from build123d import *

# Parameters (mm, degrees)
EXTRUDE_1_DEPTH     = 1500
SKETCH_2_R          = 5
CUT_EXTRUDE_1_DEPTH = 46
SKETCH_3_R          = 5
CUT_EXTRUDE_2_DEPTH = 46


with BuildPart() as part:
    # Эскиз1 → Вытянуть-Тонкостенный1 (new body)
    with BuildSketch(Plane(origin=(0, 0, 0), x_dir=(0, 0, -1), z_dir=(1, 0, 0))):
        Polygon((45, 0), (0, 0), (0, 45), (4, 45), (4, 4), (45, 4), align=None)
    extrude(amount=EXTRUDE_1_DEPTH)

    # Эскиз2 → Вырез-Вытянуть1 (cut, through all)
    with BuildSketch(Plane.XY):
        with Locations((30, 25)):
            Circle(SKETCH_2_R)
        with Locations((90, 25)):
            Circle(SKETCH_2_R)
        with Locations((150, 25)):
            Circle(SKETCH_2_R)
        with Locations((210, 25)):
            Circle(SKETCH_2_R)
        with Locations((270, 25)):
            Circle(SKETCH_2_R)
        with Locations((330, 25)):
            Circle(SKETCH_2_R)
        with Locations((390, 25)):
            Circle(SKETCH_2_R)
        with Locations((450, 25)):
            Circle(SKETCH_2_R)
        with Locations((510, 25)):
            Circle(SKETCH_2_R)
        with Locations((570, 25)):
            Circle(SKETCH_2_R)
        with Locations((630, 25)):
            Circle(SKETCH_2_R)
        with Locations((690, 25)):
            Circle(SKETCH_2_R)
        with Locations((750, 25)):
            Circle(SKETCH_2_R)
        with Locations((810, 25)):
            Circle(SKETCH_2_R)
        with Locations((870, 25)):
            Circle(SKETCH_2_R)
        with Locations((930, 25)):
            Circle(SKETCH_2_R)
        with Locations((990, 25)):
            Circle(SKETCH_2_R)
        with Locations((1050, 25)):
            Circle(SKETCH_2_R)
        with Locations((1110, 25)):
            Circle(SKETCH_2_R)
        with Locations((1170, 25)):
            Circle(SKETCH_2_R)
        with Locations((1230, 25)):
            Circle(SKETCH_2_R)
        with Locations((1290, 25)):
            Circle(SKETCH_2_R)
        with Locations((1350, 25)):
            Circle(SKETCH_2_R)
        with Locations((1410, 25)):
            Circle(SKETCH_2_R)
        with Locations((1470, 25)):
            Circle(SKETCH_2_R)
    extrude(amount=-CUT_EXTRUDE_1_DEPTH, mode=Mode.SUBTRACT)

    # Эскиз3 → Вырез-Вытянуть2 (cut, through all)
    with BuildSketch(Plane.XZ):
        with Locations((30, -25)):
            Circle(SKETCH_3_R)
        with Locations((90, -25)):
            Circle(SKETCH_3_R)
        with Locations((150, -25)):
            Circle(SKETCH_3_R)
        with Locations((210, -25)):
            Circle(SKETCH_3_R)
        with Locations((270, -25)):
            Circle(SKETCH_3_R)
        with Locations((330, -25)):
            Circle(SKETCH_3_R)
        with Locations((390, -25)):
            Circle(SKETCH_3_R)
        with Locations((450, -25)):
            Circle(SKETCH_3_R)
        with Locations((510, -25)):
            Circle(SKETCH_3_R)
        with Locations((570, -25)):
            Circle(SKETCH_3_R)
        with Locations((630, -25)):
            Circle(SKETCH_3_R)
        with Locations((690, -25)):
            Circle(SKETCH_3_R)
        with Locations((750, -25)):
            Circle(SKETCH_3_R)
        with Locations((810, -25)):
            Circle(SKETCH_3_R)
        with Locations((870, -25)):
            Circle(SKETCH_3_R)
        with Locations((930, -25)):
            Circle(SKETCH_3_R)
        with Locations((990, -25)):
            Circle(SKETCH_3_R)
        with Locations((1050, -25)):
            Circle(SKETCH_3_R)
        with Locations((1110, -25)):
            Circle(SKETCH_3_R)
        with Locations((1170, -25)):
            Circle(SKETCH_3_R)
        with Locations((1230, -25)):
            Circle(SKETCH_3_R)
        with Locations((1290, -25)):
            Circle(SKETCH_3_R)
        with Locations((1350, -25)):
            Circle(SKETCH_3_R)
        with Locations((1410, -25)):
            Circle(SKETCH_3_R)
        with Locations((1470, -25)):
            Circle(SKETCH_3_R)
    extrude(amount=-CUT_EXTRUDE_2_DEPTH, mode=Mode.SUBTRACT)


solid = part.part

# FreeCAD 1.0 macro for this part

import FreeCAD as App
import Part
import Sketcher

V = App.Vector

doc = App.newDocument("Part")
params = doc.addObject("Spreadsheet::Sheet", "Params")
for row, (alias, value) in enumerate([
    ("sketch1_width", "4 mm"),
    ("sketch1_width2", "41 mm"),
    ("pad1_length", "1500 mm"),
    ("sketch2_diameter", "10 mm"),
    ("sketch3_diameter", "10 mm"),
], start=1):
    params.set(f"A{row}", alias)
    params.set(f"B{row}", "=" + value)
    params.setAlias(f"B{row}", alias)

body = doc.addObject("PartDesign::Body", "Body")

# Sketch on YZ plane
sketch1 = body.newObject("Sketcher::SketchObject", "Sketch")
sketch1.AttachmentSupport = (doc.getObject("YZ_Plane"), [""])
sketch1.MapMode = "FlatFace"
sketch1.addGeometry([
    Part.LineSegment(V(0, 0, 0), V(0, -45, 0)),  # 0
    Part.LineSegment(V(0, -45, 0), V(4, -45, 0)),  # 1
    Part.LineSegment(V(4, -45, 0), V(4, -4, 0)),  # 2
    Part.LineSegment(V(4, -4, 0), V(45, -4, 0)),  # 3
    Part.LineSegment(V(45, -4, 0), V(45, 0, 0)),  # 4
    Part.LineSegment(V(45, 0, 0), V(0, 0, 0)),  # 5
], False)
sketch1.addConstraint([
    Sketcher.Constraint("Coincident", 0, 2, 1, 1),
    Sketcher.Constraint("Coincident", 1, 2, 2, 1),
    Sketcher.Constraint("Coincident", 2, 2, 3, 1),
    Sketcher.Constraint("Coincident", 3, 2, 4, 1),
    Sketcher.Constraint("Coincident", 4, 2, 5, 1),
    Sketcher.Constraint("Coincident", 5, 2, 0, 1),
    Sketcher.Constraint("Vertical", 0),
    Sketcher.Constraint("Horizontal", 1),
    Sketcher.Constraint("Vertical", 2),
    Sketcher.Constraint("Horizontal", 3),
    Sketcher.Constraint("Vertical", 4),
    Sketcher.Constraint("Horizontal", 5),
    Sketcher.Constraint("Coincident", 5, 2, -1, 1),
    Sketcher.Constraint("Equal", 5, 0),
    Sketcher.Constraint("Equal", 3, 2),
    Sketcher.Constraint("DistanceX", 1, 1, 1, 2, 4.0),
    Sketcher.Constraint("DistanceX", 3, 1, 3, 2, 41.0),
])
sketch1.setExpression("Constraints[15]", "Params.sketch1_width")
sketch1.setExpression("Constraints[16]", "Params.sketch1_width2")
pad1 = body.newObject("PartDesign::Pad", "Pad")
pad1.Profile = sketch1
pad1.setExpression("Length", "Params.pad1_length")

# Sketch on XY plane
sketch2 = body.newObject("Sketcher::SketchObject", "Sketch001")
sketch2.AttachmentSupport = (doc.getObject("XY_Plane"), [""])
sketch2.MapMode = "FlatFace"
sketch2.addGeometry([
    Part.Circle(V(30, 25, 0), V(0, 0, 1), 5),  # 0
    Part.Circle(V(90, 25, 0), V(0, 0, 1), 5),  # 1
    Part.Circle(V(150, 25, 0), V(0, 0, 1), 5),  # 2
    Part.Circle(V(210, 25, 0), V(0, 0, 1), 5),  # 3
    Part.Circle(V(270, 25, 0), V(0, 0, 1), 5),  # 4
    Part.Circle(V(330, 25, 0), V(0, 0, 1), 5),  # 5
    Part.Circle(V(390, 25, 0), V(0, 0, 1), 5),  # 6
    Part.Circle(V(450, 25, 0), V(0, 0, 1), 5),  # 7
    Part.Circle(V(510, 25, 0), V(0, 0, 1), 5),  # 8
    Part.Circle(V(570, 25, 0), V(0, 0, 1), 5),  # 9
    Part.Circle(V(630, 25, 0), V(0, 0, 1), 5),  # 10
    Part.Circle(V(690, 25, 0), V(0, 0, 1), 5),  # 11
    Part.Circle(V(750, 25, 0), V(0, 0, 1), 5),  # 12
    Part.Circle(V(810, 25, 0), V(0, 0, 1), 5),  # 13
    Part.Circle(V(870, 25, 0), V(0, 0, 1), 5),  # 14
    Part.Circle(V(930, 25, 0), V(0, 0, 1), 5),  # 15
    Part.Circle(V(990, 25, 0), V(0, 0, 1), 5),  # 16
    Part.Circle(V(1050, 25, 0), V(0, 0, 1), 5),  # 17
    Part.Circle(V(1110, 25, 0), V(0, 0, 1), 5),  # 18
    Part.Circle(V(1170, 25, 0), V(0, 0, 1), 5),  # 19
    Part.Circle(V(1230, 25, 0), V(0, 0, 1), 5),  # 20
    Part.Circle(V(1290, 25, 0), V(0, 0, 1), 5),  # 21
    Part.Circle(V(1350, 25, 0), V(0, 0, 1), 5),  # 22
    Part.Circle(V(1410, 25, 0), V(0, 0, 1), 5),  # 23
    Part.Circle(V(1470, 25, 0), V(0, 0, 1), 5),  # 24
], False)
sketch2.addConstraint([
    Sketcher.Constraint("Equal", 0, 1),
    Sketcher.Constraint("Equal", 1, 2),
    Sketcher.Constraint("Equal", 2, 3),
    Sketcher.Constraint("Equal", 3, 4),
    Sketcher.Constraint("Equal", 4, 5),
    Sketcher.Constraint("Equal", 5, 6),
    Sketcher.Constraint("Equal", 6, 7),
    Sketcher.Constraint("Equal", 7, 8),
    Sketcher.Constraint("Equal", 8, 9),
    Sketcher.Constraint("Equal", 9, 10),
    Sketcher.Constraint("Equal", 10, 11),
    Sketcher.Constraint("Equal", 11, 12),
    Sketcher.Constraint("Equal", 12, 13),
    Sketcher.Constraint("Equal", 13, 14),
    Sketcher.Constraint("Equal", 14, 15),
    Sketcher.Constraint("Equal", 15, 16),
    Sketcher.Constraint("Equal", 16, 17),
    Sketcher.Constraint("Equal", 17, 18),
    Sketcher.Constraint("Equal", 18, 19),
    Sketcher.Constraint("Equal", 19, 20),
    Sketcher.Constraint("Equal", 20, 21),
    Sketcher.Constraint("Equal", 21, 22),
    Sketcher.Constraint("Equal", 22, 23),
    Sketcher.Constraint("Equal", 23, 24),
    Sketcher.Constraint("Horizontal", 0, 3, 1, 3),
    Sketcher.Constraint("Horizontal", 1, 3, 2, 3),
    Sketcher.Constraint("Horizontal", 2, 3, 3, 3),
    Sketcher.Constraint("Horizontal", 3, 3, 4, 3),
    Sketcher.Constraint("Horizontal", 4, 3, 5, 3),
    Sketcher.Constraint("Horizontal", 5, 3, 6, 3),
    Sketcher.Constraint("Horizontal", 6, 3, 7, 3),
    Sketcher.Constraint("Horizontal", 7, 3, 8, 3),
    Sketcher.Constraint("Horizontal", 8, 3, 9, 3),
    Sketcher.Constraint("Horizontal", 9, 3, 10, 3),
    Sketcher.Constraint("Horizontal", 10, 3, 11, 3),
    Sketcher.Constraint("Horizontal", 11, 3, 12, 3),
    Sketcher.Constraint("Horizontal", 12, 3, 13, 3),
    Sketcher.Constraint("Horizontal", 13, 3, 14, 3),
    Sketcher.Constraint("Horizontal", 14, 3, 15, 3),
    Sketcher.Constraint("Horizontal", 15, 3, 16, 3),
    Sketcher.Constraint("Horizontal", 16, 3, 17, 3),
    Sketcher.Constraint("Horizontal", 17, 3, 18, 3),
    Sketcher.Constraint("Horizontal", 18, 3, 19, 3),
    Sketcher.Constraint("Horizontal", 19, 3, 20, 3),
    Sketcher.Constraint("Horizontal", 20, 3, 21, 3),
    Sketcher.Constraint("Horizontal", 21, 3, 22, 3),
    Sketcher.Constraint("Horizontal", 22, 3, 23, 3),
    Sketcher.Constraint("Horizontal", 23, 3, 24, 3),
    Sketcher.Constraint("Diameter", 0, 10.0),
    Sketcher.Constraint("DistanceX", -1, 1, 0, 3, 30.0),
    Sketcher.Constraint("DistanceY", -1, 1, 0, 3, 25.0),
    Sketcher.Constraint("DistanceX", -1, 1, 1, 3, 90.0),
    Sketcher.Constraint("DistanceX", -1, 1, 2, 3, 150.0),
    Sketcher.Constraint("DistanceX", -1, 1, 3, 3, 210.0),
    Sketcher.Constraint("DistanceX", -1, 1, 4, 3, 270.0),
    Sketcher.Constraint("DistanceX", -1, 1, 5, 3, 330.0),
    Sketcher.Constraint("DistanceX", -1, 1, 6, 3, 390.0),
    Sketcher.Constraint("DistanceX", -1, 1, 7, 3, 450.0),
    Sketcher.Constraint("DistanceX", -1, 1, 8, 3, 510.0),
    Sketcher.Constraint("DistanceX", -1, 1, 9, 3, 570.0),
    Sketcher.Constraint("DistanceX", -1, 1, 10, 3, 630.0),
    Sketcher.Constraint("DistanceX", -1, 1, 11, 3, 690.0),
    Sketcher.Constraint("DistanceX", -1, 1, 12, 3, 750.0),
    Sketcher.Constraint("DistanceX", -1, 1, 13, 3, 810.0),
    Sketcher.Constraint("DistanceX", -1, 1, 14, 3, 870.0),
    Sketcher.Constraint("DistanceX", -1, 1, 15, 3, 930.0),
    Sketcher.Constraint("DistanceX", -1, 1, 16, 3, 990.0),
    Sketcher.Constraint("DistanceX", -1, 1, 17, 3, 1050.0),
    Sketcher.Constraint("DistanceX", -1, 1, 18, 3, 1110.0),
    Sketcher.Constraint("DistanceX", -1, 1, 19, 3, 1170.0),
    Sketcher.Constraint("DistanceX", -1, 1, 20, 3, 1230.0),
    Sketcher.Constraint("DistanceX", -1, 1, 21, 3, 1290.0),
    Sketcher.Constraint("DistanceX", -1, 1, 22, 3, 1350.0),
    Sketcher.Constraint("DistanceX", -1, 1, 23, 3, 1410.0),
    Sketcher.Constraint("DistanceX", -1, 1, 24, 3, 1470.0),
])
sketch2.setExpression("Constraints[48]", "Params.sketch2_diameter")
pocket1 = body.newObject("PartDesign::Pocket", "Pocket")
pocket1.Profile = sketch2
pocket1.Type = "ThroughAll"

# Sketch on XZ plane
sketch3 = body.newObject("Sketcher::SketchObject", "Sketch002")
sketch3.AttachmentSupport = (doc.getObject("XZ_Plane"), [""])
sketch3.MapMode = "FlatFace"
sketch3.addGeometry([
    Part.Circle(V(30, -25, 0), V(0, 0, 1), 5),  # 0
    Part.Circle(V(90, -25, 0), V(0, 0, 1), 5),  # 1
    Part.Circle(V(150, -25, 0), V(0, 0, 1), 5),  # 2
    Part.Circle(V(210, -25, 0), V(0, 0, 1), 5),  # 3
    Part.Circle(V(270, -25, 0), V(0, 0, 1), 5),  # 4
    Part.Circle(V(330, -25, 0), V(0, 0, 1), 5),  # 5
    Part.Circle(V(390, -25, 0), V(0, 0, 1), 5),  # 6
    Part.Circle(V(450, -25, 0), V(0, 0, 1), 5),  # 7
    Part.Circle(V(510, -25, 0), V(0, 0, 1), 5),  # 8
    Part.Circle(V(570, -25, 0), V(0, 0, 1), 5),  # 9
    Part.Circle(V(630, -25, 0), V(0, 0, 1), 5),  # 10
    Part.Circle(V(690, -25, 0), V(0, 0, 1), 5),  # 11
    Part.Circle(V(750, -25, 0), V(0, 0, 1), 5),  # 12
    Part.Circle(V(810, -25, 0), V(0, 0, 1), 5),  # 13
    Part.Circle(V(870, -25, 0), V(0, 0, 1), 5),  # 14
    Part.Circle(V(930, -25, 0), V(0, 0, 1), 5),  # 15
    Part.Circle(V(990, -25, 0), V(0, 0, 1), 5),  # 16
    Part.Circle(V(1050, -25, 0), V(0, 0, 1), 5),  # 17
    Part.Circle(V(1110, -25, 0), V(0, 0, 1), 5),  # 18
    Part.Circle(V(1170, -25, 0), V(0, 0, 1), 5),  # 19
    Part.Circle(V(1230, -25, 0), V(0, 0, 1), 5),  # 20
    Part.Circle(V(1290, -25, 0), V(0, 0, 1), 5),  # 21
    Part.Circle(V(1350, -25, 0), V(0, 0, 1), 5),  # 22
    Part.Circle(V(1410, -25, 0), V(0, 0, 1), 5),  # 23
    Part.Circle(V(1470, -25, 0), V(0, 0, 1), 5),  # 24
], False)
sketch3.addConstraint([
    Sketcher.Constraint("Equal", 0, 1),
    Sketcher.Constraint("Equal", 1, 2),
    Sketcher.Constraint("Equal", 2, 3),
    Sketcher.Constraint("Equal", 3, 4),
    Sketcher.Constraint("Equal", 4, 5),
    Sketcher.Constraint("Equal", 5, 6),
    Sketcher.Constraint("Equal", 6, 7),
    Sketcher.Constraint("Equal", 7, 8),
    Sketcher.Constraint("Equal", 8, 9),
    Sketcher.Constraint("Equal", 9, 10),
    Sketcher.Constraint("Equal", 10, 11),
    Sketcher.Constraint("Equal", 11, 12),
    Sketcher.Constraint("Equal", 12, 13),
    Sketcher.Constraint("Equal", 13, 14),
    Sketcher.Constraint("Equal", 14, 15),
    Sketcher.Constraint("Equal", 15, 16),
    Sketcher.Constraint("Equal", 16, 17),
    Sketcher.Constraint("Equal", 17, 18),
    Sketcher.Constraint("Equal", 18, 19),
    Sketcher.Constraint("Equal", 19, 20),
    Sketcher.Constraint("Equal", 20, 21),
    Sketcher.Constraint("Equal", 21, 22),
    Sketcher.Constraint("Equal", 22, 23),
    Sketcher.Constraint("Equal", 23, 24),
    Sketcher.Constraint("Horizontal", 0, 3, 1, 3),
    Sketcher.Constraint("Horizontal", 1, 3, 2, 3),
    Sketcher.Constraint("Horizontal", 2, 3, 3, 3),
    Sketcher.Constraint("Horizontal", 3, 3, 4, 3),
    Sketcher.Constraint("Horizontal", 4, 3, 5, 3),
    Sketcher.Constraint("Horizontal", 5, 3, 6, 3),
    Sketcher.Constraint("Horizontal", 6, 3, 7, 3),
    Sketcher.Constraint("Horizontal", 7, 3, 8, 3),
    Sketcher.Constraint("Horizontal", 8, 3, 9, 3),
    Sketcher.Constraint("Horizontal", 9, 3, 10, 3),
    Sketcher.Constraint("Horizontal", 10, 3, 11, 3),
    Sketcher.Constraint("Horizontal", 11, 3, 12, 3),
    Sketcher.Constraint("Horizontal", 12, 3, 13, 3),
    Sketcher.Constraint("Horizontal", 13, 3, 14, 3),
    Sketcher.Constraint("Horizontal", 14, 3, 15, 3),
    Sketcher.Constraint("Horizontal", 15, 3, 16, 3),
    Sketcher.Constraint("Horizontal", 16, 3, 17, 3),
    Sketcher.Constraint("Horizontal", 17, 3, 18, 3),
    Sketcher.Constraint("Horizontal", 18, 3, 19, 3),
    Sketcher.Constraint("Horizontal", 19, 3, 20, 3),
    Sketcher.Constraint("Horizontal", 20, 3, 21, 3),
    Sketcher.Constraint("Horizontal", 21, 3, 22, 3),
    Sketcher.Constraint("Horizontal", 22, 3, 23, 3),
    Sketcher.Constraint("Horizontal", 23, 3, 24, 3),
    Sketcher.Constraint("Diameter", 0, 10.0),
    Sketcher.Constraint("DistanceX", -1, 1, 0, 3, 30.0),
    Sketcher.Constraint("DistanceY", 0, 3, -1, 1, 25.0),
    Sketcher.Constraint("DistanceX", -1, 1, 1, 3, 90.0),
    Sketcher.Constraint("DistanceX", -1, 1, 2, 3, 150.0),
    Sketcher.Constraint("DistanceX", -1, 1, 3, 3, 210.0),
    Sketcher.Constraint("DistanceX", -1, 1, 4, 3, 270.0),
    Sketcher.Constraint("DistanceX", -1, 1, 5, 3, 330.0),
    Sketcher.Constraint("DistanceX", -1, 1, 6, 3, 390.0),
    Sketcher.Constraint("DistanceX", -1, 1, 7, 3, 450.0),
    Sketcher.Constraint("DistanceX", -1, 1, 8, 3, 510.0),
    Sketcher.Constraint("DistanceX", -1, 1, 9, 3, 570.0),
    Sketcher.Constraint("DistanceX", -1, 1, 10, 3, 630.0),
    Sketcher.Constraint("DistanceX", -1, 1, 11, 3, 690.0),
    Sketcher.Constraint("DistanceX", -1, 1, 12, 3, 750.0),
    Sketcher.Constraint("DistanceX", -1, 1, 13, 3, 810.0),
    Sketcher.Constraint("DistanceX", -1, 1, 14, 3, 870.0),
    Sketcher.Constraint("DistanceX", -1, 1, 15, 3, 930.0),
    Sketcher.Constraint("DistanceX", -1, 1, 16, 3, 990.0),
    Sketcher.Constraint("DistanceX", -1, 1, 17, 3, 1050.0),
    Sketcher.Constraint("DistanceX", -1, 1, 18, 3, 1110.0),
    Sketcher.Constraint("DistanceX", -1, 1, 19, 3, 1170.0),
    Sketcher.Constraint("DistanceX", -1, 1, 20, 3, 1230.0),
    Sketcher.Constraint("DistanceX", -1, 1, 21, 3, 1290.0),
    Sketcher.Constraint("DistanceX", -1, 1, 22, 3, 1350.0),
    Sketcher.Constraint("DistanceX", -1, 1, 23, 3, 1410.0),
    Sketcher.Constraint("DistanceX", -1, 1, 24, 3, 1470.0),
])
sketch3.setExpression("Constraints[48]", "Params.sketch3_diameter")
pocket2 = body.newObject("PartDesign::Pocket", "Pocket001")
pocket2.Profile = sketch3
pocket2.Type = "ThroughAll"

doc.recompute()
